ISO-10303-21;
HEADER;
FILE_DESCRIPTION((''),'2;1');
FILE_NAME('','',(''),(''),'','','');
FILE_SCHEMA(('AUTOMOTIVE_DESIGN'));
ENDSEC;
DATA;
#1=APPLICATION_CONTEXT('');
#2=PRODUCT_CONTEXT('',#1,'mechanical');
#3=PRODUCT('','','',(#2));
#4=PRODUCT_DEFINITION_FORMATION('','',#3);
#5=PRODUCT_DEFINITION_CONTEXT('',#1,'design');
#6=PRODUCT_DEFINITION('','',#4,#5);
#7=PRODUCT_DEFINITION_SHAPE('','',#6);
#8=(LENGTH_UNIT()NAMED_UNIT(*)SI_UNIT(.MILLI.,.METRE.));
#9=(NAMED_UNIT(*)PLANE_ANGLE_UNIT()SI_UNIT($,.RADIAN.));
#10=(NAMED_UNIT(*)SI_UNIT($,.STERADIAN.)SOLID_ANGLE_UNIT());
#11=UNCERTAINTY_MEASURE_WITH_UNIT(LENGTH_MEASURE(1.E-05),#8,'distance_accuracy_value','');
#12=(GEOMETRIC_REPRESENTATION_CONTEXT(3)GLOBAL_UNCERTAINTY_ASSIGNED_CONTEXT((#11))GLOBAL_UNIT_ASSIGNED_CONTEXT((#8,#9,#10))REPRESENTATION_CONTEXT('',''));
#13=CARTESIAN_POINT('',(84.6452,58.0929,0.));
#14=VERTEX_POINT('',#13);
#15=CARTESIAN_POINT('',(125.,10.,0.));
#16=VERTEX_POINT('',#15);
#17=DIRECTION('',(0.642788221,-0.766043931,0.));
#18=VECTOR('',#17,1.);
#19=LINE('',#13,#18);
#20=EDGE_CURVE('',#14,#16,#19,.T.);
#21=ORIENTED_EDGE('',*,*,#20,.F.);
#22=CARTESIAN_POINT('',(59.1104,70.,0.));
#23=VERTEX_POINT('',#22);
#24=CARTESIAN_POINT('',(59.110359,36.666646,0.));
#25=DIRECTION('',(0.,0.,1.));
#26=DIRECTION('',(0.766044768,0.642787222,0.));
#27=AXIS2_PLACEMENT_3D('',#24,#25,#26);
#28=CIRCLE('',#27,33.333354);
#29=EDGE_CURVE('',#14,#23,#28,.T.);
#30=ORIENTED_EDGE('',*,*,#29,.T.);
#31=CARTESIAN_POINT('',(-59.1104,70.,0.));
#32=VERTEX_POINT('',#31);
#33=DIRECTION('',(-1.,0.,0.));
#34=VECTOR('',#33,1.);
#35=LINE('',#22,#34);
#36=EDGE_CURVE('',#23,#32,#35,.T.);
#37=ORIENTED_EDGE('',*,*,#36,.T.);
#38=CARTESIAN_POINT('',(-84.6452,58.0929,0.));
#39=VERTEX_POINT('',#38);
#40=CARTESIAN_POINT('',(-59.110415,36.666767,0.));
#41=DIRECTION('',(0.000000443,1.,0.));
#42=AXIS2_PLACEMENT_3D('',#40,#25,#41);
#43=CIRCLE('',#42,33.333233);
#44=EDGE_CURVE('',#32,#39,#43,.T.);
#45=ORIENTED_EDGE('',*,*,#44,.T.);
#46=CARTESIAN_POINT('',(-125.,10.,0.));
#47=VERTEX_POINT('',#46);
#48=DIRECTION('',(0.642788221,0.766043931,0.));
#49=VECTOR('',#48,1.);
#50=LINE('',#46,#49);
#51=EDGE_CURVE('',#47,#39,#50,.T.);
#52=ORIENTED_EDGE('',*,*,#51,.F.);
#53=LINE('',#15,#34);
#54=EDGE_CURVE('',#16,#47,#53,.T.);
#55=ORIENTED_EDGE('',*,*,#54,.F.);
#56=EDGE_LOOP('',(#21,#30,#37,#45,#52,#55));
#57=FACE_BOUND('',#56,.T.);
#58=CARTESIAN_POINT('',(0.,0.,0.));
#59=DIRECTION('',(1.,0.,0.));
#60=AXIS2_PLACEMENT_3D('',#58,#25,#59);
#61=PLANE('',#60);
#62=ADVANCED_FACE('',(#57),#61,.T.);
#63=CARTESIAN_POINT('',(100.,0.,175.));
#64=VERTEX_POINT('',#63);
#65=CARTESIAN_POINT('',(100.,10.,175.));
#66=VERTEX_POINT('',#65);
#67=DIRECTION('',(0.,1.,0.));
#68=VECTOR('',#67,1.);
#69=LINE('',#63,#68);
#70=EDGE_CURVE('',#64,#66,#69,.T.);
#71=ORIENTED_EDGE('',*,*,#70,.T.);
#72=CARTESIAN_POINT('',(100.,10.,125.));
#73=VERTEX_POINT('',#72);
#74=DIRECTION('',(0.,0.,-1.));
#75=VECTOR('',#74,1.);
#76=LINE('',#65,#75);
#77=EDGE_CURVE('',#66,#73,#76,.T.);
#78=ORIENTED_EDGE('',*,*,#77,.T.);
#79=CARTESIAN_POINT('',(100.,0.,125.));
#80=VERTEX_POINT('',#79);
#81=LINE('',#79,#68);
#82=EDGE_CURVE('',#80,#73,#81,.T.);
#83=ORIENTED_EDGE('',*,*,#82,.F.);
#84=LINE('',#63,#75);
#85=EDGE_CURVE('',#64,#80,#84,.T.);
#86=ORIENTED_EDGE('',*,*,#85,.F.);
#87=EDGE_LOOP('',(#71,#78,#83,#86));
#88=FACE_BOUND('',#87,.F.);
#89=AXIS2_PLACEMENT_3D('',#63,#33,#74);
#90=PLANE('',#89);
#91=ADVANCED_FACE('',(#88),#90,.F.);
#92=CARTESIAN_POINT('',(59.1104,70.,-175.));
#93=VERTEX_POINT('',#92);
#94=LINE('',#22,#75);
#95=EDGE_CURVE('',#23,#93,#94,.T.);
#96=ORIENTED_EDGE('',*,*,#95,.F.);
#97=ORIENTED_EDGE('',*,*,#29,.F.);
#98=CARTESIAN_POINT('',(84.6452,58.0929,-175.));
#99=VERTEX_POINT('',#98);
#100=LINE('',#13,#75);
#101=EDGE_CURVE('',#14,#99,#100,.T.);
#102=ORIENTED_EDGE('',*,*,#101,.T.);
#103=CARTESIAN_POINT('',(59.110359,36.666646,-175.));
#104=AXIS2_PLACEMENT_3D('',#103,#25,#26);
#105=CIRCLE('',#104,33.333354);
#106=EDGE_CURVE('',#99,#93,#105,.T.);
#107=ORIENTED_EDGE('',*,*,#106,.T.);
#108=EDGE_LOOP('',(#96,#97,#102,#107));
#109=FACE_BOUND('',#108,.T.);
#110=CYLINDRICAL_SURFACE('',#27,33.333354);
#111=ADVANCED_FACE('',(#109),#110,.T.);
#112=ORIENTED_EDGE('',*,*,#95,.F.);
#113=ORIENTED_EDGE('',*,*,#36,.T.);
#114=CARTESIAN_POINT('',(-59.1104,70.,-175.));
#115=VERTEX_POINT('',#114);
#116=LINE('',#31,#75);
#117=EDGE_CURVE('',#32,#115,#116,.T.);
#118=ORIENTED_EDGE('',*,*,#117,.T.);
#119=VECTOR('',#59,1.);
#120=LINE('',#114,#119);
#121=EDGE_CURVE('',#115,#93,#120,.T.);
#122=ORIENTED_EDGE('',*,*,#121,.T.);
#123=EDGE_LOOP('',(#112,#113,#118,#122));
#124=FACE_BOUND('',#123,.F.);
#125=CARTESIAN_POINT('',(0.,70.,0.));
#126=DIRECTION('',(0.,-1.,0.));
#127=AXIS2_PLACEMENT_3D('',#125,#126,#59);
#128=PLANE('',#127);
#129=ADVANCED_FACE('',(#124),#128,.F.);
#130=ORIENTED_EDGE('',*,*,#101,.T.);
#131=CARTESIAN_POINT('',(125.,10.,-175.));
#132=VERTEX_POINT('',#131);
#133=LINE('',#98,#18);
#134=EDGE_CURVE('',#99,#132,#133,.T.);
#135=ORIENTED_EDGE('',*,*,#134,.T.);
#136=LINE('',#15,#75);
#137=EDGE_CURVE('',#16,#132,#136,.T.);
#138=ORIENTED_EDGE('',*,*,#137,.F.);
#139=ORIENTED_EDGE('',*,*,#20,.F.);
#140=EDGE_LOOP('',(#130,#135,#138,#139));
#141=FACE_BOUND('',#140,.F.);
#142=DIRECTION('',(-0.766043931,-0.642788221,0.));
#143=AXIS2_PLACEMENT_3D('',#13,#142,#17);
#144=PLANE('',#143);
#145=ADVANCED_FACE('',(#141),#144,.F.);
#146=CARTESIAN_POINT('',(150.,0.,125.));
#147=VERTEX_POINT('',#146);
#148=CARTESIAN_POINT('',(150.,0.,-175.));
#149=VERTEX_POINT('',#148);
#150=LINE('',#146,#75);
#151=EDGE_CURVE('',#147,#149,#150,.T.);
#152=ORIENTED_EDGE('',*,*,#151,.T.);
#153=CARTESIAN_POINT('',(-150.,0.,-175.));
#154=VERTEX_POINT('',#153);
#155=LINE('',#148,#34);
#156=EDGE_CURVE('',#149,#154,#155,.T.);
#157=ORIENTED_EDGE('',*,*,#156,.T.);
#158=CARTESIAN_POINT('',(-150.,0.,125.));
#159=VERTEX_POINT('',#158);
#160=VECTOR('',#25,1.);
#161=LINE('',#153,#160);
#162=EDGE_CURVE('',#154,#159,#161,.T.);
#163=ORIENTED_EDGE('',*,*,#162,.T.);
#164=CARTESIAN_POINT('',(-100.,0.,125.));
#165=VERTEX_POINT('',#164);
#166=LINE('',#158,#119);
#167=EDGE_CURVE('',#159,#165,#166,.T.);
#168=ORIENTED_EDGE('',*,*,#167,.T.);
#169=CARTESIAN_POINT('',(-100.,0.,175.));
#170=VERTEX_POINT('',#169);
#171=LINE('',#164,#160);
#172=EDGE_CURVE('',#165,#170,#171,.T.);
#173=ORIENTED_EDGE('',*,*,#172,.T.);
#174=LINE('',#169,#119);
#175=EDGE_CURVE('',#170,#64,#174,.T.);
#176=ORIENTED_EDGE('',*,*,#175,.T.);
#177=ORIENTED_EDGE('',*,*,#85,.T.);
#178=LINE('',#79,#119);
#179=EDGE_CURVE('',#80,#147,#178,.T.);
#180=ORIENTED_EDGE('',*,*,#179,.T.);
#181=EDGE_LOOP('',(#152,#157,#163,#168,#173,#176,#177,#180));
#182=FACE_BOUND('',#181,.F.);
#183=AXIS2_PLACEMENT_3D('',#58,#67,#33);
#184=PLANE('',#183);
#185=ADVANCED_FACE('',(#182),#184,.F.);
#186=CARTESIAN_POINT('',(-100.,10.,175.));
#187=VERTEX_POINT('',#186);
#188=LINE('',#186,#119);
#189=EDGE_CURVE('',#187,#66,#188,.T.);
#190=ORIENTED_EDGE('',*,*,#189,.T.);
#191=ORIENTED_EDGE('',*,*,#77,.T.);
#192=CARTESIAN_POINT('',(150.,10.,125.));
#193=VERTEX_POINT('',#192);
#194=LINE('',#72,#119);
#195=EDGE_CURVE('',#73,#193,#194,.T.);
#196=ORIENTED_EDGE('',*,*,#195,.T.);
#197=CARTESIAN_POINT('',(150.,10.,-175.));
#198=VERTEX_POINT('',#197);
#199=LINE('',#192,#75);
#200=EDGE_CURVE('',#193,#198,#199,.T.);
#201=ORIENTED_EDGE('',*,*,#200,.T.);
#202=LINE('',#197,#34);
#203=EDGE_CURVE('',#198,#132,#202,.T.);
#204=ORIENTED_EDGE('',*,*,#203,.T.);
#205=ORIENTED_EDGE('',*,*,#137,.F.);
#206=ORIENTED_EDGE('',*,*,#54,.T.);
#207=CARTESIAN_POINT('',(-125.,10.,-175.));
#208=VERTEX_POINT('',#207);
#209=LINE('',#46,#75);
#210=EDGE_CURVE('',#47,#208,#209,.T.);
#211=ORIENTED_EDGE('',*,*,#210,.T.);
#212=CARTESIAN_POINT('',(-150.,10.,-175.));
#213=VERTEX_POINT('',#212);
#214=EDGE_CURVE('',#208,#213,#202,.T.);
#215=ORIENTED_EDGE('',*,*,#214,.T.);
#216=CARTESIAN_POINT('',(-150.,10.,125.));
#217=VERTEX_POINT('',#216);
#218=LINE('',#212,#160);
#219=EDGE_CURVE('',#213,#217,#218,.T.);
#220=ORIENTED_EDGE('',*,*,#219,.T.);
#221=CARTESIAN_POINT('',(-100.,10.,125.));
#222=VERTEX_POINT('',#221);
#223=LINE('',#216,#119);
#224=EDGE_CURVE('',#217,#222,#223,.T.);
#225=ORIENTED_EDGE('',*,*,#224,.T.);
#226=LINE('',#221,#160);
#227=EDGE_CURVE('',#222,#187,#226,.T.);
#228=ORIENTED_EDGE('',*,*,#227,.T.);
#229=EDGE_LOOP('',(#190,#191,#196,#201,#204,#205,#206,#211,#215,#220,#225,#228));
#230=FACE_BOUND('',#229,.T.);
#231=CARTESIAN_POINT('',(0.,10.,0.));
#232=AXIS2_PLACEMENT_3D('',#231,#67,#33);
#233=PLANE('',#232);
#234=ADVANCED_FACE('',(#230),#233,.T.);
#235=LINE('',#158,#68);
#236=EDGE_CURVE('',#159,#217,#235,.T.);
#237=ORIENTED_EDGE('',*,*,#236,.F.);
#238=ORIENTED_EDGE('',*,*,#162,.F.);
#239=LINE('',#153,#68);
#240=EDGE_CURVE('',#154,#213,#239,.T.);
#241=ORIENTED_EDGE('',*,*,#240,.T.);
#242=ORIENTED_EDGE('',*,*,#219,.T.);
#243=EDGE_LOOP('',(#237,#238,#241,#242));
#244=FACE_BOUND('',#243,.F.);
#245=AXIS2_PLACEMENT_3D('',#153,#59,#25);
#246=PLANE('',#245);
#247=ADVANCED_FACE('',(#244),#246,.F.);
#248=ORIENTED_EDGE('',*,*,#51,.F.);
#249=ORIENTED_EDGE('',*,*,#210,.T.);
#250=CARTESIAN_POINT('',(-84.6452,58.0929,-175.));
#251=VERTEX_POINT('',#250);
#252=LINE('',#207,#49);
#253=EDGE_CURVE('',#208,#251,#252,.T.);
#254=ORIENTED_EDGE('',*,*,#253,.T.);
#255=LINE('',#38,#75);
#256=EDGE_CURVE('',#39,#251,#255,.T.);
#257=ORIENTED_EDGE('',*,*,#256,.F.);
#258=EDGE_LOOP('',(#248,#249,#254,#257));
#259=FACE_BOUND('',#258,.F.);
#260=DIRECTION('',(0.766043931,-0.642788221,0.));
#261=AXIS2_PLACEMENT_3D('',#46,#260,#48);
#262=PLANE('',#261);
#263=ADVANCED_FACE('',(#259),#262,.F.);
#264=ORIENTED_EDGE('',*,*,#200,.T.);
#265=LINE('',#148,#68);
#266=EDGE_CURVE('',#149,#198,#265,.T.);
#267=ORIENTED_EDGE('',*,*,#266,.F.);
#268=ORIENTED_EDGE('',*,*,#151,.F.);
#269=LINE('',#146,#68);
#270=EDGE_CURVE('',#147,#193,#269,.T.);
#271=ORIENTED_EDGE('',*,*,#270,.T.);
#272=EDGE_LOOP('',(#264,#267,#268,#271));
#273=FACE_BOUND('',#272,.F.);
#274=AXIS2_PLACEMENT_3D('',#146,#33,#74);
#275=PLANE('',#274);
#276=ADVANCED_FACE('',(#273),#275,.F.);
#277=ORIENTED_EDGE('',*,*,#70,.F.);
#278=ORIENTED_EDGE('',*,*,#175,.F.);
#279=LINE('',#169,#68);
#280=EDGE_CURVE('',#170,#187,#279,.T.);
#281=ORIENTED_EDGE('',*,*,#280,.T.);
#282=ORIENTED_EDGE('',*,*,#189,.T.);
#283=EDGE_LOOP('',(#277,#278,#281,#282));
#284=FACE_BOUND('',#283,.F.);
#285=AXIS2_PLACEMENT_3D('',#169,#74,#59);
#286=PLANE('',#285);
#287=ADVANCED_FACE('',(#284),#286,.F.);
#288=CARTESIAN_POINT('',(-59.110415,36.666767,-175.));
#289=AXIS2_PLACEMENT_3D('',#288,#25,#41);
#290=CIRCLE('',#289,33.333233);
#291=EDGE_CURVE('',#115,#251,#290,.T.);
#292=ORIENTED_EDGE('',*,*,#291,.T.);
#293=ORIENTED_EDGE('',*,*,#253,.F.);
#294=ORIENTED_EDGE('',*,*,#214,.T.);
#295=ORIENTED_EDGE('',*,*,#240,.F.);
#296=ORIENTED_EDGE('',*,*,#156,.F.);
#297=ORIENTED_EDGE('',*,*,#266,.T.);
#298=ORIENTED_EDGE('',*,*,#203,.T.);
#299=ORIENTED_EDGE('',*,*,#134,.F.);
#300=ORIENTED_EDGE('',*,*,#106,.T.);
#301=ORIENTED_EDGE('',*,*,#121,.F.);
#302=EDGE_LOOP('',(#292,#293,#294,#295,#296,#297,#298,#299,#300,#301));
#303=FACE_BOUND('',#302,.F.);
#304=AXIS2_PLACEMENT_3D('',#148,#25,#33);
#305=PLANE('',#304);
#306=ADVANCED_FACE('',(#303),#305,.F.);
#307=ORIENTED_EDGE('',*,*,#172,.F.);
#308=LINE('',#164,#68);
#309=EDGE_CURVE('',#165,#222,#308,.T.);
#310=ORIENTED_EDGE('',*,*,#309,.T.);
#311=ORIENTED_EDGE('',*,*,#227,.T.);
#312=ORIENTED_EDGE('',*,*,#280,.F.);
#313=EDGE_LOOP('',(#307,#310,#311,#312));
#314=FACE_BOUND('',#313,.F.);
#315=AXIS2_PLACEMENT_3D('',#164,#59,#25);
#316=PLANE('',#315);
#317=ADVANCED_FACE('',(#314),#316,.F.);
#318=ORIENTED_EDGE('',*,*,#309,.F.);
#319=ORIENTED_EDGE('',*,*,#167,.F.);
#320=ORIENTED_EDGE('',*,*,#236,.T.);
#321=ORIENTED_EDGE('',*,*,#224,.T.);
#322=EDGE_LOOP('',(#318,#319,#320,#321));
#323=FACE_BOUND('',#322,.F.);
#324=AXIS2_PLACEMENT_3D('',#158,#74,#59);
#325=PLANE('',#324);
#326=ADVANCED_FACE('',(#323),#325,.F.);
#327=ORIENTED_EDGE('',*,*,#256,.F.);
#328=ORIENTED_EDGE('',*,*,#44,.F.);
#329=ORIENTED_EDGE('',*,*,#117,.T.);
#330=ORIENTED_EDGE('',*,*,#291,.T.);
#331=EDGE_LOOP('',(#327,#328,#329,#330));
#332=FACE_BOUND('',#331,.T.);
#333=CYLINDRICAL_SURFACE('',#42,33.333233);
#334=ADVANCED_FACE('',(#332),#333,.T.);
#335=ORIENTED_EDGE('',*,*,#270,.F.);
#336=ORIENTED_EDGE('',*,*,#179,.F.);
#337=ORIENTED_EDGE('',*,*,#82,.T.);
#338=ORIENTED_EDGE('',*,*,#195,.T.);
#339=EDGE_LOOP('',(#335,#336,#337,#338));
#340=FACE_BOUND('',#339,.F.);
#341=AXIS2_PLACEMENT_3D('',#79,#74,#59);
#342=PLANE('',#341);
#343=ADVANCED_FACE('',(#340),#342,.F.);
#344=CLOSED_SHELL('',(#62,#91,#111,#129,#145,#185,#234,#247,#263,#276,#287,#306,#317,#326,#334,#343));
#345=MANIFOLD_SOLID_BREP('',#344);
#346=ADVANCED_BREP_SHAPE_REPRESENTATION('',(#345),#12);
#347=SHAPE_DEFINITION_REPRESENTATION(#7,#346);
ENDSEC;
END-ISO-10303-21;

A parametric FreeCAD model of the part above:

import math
import FreeCAD as App
import Part
import Sketcher
from FreeCAD import Vector
Q = App.Units.Quantity

doc = App.newDocument("Part")
params = doc.addObject("Spreadsheet::Sheet", "Params")
for row, (alias, value) in enumerate([
    ("sketch1_width", "50 mm"),
    ("sketch1_width2", "300 mm"),
    ("pad1_length", "10 mm"),
    ("sketch2_width", "250 mm"),
    ("pad2_length", "175 mm"),
], start=1):
    params.set(f"A{row}", alias)
    params.set(f"B{row}", "=" + value)
    params.setAlias(f"B{row}", alias)

body = doc.addObject("PartDesign::Body", "Body")

sketch1 = body.newObject("Sketcher::SketchObject", "Sketch")
sketch1.AttachmentSupport = (doc.getObject("XZ_Plane"), [""])
sketch1.MapMode = "FlatFace"
sketch1.addGeometry([
    Part.LineSegment(Vector(100, 125, 0), Vector(150, 125, 0)),
    Part.LineSegment(Vector(150, 125, 0), Vector(150, -175, 0)),
    Part.LineSegment(Vector(150, -175, 0), Vector(-150, -175, 0)),
    Part.LineSegment(Vector(-150, -175, 0), Vector(-150, 125, 0)),
    Part.LineSegment(Vector(-150, 125, 0), Vector(-100, 125, 0)),
    Part.LineSegment(Vector(-100, 125, 0), Vector(-100, 175, 0)),
    Part.LineSegment(Vector(-100, 175, 0), Vector(100, 175, 0)),
    Part.LineSegment(Vector(100, 175, 0), Vector(100, 125, 0)),
], False)
sketch1.addConstraint([
    Sketcher.Constraint("Coincident", 0, 2, 1, 1),
    Sketcher.Constraint("Coincident", 1, 2, 2, 1),
    Sketcher.Constraint("Coincident", 2, 2, 3, 1),
    Sketcher.Constraint("Coincident", 3, 2, 4, 1),
    Sketcher.Constraint("Coincident", 4, 2, 5, 1),
    Sketcher.Constraint("Coincident", 5, 2, 6, 1),
    Sketcher.Constraint("Coincident", 6, 2, 7, 1),
    Sketcher.Constraint("Coincident", 7, 2, 0, 1),
    Sketcher.Constraint("Horizontal", 0),
    Sketcher.Constraint("Vertical", 1),
    Sketcher.Constraint("Horizontal", 2),
    Sketcher.Constraint("Vertical", 3),
    Sketcher.Constraint("Horizontal", 4),
    Sketcher.Constraint("Vertical", 5),
    Sketcher.Constraint("Horizontal", 6),
    Sketcher.Constraint("Vertical", 7),
    Sketcher.Constraint("Symmetric", 0, 2, 3, 2, -2),
    Sketcher.Constraint("Equal", 0, 4),
    Sketcher.Constraint("Equal", 2, 1),
    Sketcher.Constraint("Equal", 4, 5),
    Sketcher.Constraint("DistanceX", 0, 1, 0, 2, 50.0),
    Sketcher.Constraint("DistanceX", 2, 2, 2, 1, 300.0),
    Sketcher.Constraint("DistanceY", 1, 2, -1, 1, 175.0),
])
sketch1.setExpression("Constraints[20]", "Params.sketch1_width")
sketch1.setExpression("Constraints[21]", "Params.sketch1_width2")
pad1 = body.newObject("PartDesign::Pad", "Pad")
pad1.Profile = sketch1
pad1.setExpression("Length", "Params.pad1_length")
pad1.Reversed = True

sketch2 = body.newObject("Sketcher::SketchObject", "Sketch001")
sketch2.AttachmentSupport = (doc.getObject("XY_Plane"), [""])
sketch2.MapMode = "FlatFace"
sketch2.addGeometry([
    Part.LineSegment(Vector(125, 10, 0), Vector(84.6452, 58.0929, 0)),
    Part.ArcOfCircle(Part.Circle(Vector(59.1104, 36.6667, 0), Vector(0, 0, 1), 33.333288), math.radians(39.999946), math.radians(90)),
    Part.LineSegment(Vector(59.1104, 70, 0), Vector(-59.1104, 70, 0)),
    Part.ArcOfCircle(Part.Circle(Vector(-59.1104, 36.6667, 0), Vector(0, 0, 1), 33.3333), math.radians(90), math.radians(140.000054)),
    Part.LineSegment(Vector(-84.6452, 58.0929, 0), Vector(-125, 10, 0)),
    Part.LineSegment(Vector(-125, 10, 0), Vector(125, 10, 0)),
], False)
sketch2.addConstraint([
    Sketcher.Constraint("Tangent", 0, 2, 1, 1),
    Sketcher.Constraint("Tangent", 1, 2, 2, 1),
    Sketcher.Constraint("Tangent", 2, 2, 3, 1),
    Sketcher.Constraint("Tangent", 3, 2, 4, 1),
    Sketcher.Constraint("Coincident", 4, 2, 5, 1),
    Sketcher.Constraint("Coincident", 5, 2, 0, 1),
    Sketcher.Constraint("Horizontal", 2),
    Sketcher.Constraint("Horizontal", 5),
    Sketcher.Constraint("Equal", 1, 3),
    Sketcher.Constraint("Symmetric", 0, 2, 3, 2, -2),
    Sketcher.Constraint("DistanceX", 5, 1, 5, 2, 250.0),
    Sketcher.Constraint("Angle", 0, Q("130 deg")),
    Sketcher.Constraint("DistanceY", 4, 2, 2, 2, 60.0),
    Sketcher.Constraint("Radius", 1, 33.3333),
    Sketcher.Constraint("DistanceY", -1, 1, 1, 2, 70.0),
])
sketch2.setExpression("Constraints[10]", "Params.sketch2_width")
pad2 = body.newObject("PartDesign::Pad", "Pad001")
pad2.Profile = sketch2
pad2.setExpression("Length", "Params.pad2_length")
pad2.Reversed = True

doc.recompute()
